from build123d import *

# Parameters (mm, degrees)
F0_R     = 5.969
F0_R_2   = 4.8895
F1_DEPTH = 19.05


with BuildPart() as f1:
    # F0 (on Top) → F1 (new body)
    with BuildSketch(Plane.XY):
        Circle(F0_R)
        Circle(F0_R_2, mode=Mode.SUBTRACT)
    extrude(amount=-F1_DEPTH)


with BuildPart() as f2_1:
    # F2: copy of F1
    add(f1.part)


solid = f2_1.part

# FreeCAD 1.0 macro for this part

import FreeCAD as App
import Part
import Sketcher
from FreeCAD import Vector
Q = App.Units.Quantity

doc = App.newDocument("Part")
body = doc.addObject("PartDesign::Body", "Body")

# Sketch on XY plane
sketch1 = body.newObject("Sketcher::SketchObject", "Sketch")
sketch1.AttachmentSupport = (doc.getObject("XY_Plane"), [""])
sketch1.MapMode = "FlatFace"
sketch1.addGeometry([
    Part.Circle(Vector(0, 0, 0), Vector(0, 0, 1), 6),
    Part.Circle(Vector(0, 0, 0), Vector(0, 0, 1), 4.9),
], False)
sketch1.addConstraint([
    Sketcher.Constraint("Coincident", 0, 3, -1, 1),
    Sketcher.Constraint("Coincident", 1, 3, -1, 1),
    Sketcher.Constraint("Diameter", 0, Q("0.47 in")),
    Sketcher.Constraint("Diameter", 1, Q("0.385 in")),
])
pad1 = body.newObject("PartDesign::Pad", "Pad")
pad1.Profile = sketch1
pad1.Length = Q("0.75 in")
pad1.Reversed = True

doc.recompute()
